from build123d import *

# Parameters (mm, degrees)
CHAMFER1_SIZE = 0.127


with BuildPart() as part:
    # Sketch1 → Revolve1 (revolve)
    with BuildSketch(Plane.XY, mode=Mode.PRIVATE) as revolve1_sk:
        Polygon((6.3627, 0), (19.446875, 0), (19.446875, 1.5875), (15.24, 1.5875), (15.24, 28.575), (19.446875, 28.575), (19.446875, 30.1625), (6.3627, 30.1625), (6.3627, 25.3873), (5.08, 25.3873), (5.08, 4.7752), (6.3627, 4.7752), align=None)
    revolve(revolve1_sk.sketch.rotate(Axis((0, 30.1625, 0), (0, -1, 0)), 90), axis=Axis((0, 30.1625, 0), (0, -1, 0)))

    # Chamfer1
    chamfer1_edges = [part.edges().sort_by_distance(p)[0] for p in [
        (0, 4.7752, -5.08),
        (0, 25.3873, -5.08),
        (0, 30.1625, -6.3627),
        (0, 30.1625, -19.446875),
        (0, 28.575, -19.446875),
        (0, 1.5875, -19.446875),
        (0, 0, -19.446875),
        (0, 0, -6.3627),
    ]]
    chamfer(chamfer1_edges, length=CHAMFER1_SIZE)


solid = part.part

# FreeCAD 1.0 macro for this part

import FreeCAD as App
import Part
import Sketcher
from FreeCAD import Vector
Q = App.Units.Quantity


def edges_at(feature, points):
    """Names of the edges that pass closest to the given points."""
    edges = feature.Shape.Edges
    near = lambda p: min(range(len(edges)), key=lambda i: edges[i].distToShape(Part.Vertex(*p))[0])
    return sorted({f"Edge{near(p) + 1}" for p in points})


def add_polygon(sketch, points):
    """Adds a closed chain of lines whose ends are joined by coincident constraints."""
    first, n = sketch.GeometryCount, len(points)
    for a, b in zip(points, points[1:] + points[:1]):
        sketch.addGeometry(Part.LineSegment(App.Vector(*a, 0), App.Vector(*b, 0)), False)
    for i in range(n):
        sketch.addConstraint(Sketcher.Constraint("Coincident", first + i, 2, first + (i + 1) % n, 1))

doc = App.newDocument("Part")
body = doc.addObject("PartDesign::Body", "Body")

# Sketch on XY plane
sketch1 = body.newObject("Sketcher::SketchObject", "Sketch")
sketch1.AttachmentSupport = (doc.getObject("XY_Plane"), [""])
sketch1.MapMode = "FlatFace"
add_polygon(sketch1, [(6.4, 0), (19.4, 0), (19.4, 1.6), (15.2, 1.6), (15.2, 28.6), (19.4, 28.6), (19.4, 30.2), (6.4, 30.2), (6.4, 25.4), (5.1, 25.4), (5.1, 4.8), (6.4, 4.8)])  # lines 0-11
sketch1.addConstraint([
    Sketcher.Constraint("Horizontal", 0),
    Sketcher.Constraint("Vertical", 1),
    Sketcher.Constraint("Horizontal", 2),
    Sketcher.Constraint("Vertical", 3),
    Sketcher.Constraint("Horizontal", 4),
    Sketcher.Constraint("Vertical", 5),
    Sketcher.Constraint("Horizontal", 6),
    Sketcher.Constraint("Vertical", 7),
    Sketcher.Constraint("Horizontal", 8),
    Sketcher.Constraint("Vertical", 9),
    Sketcher.Constraint("Horizontal", 10),
    Sketcher.Constraint("Vertical", 11),
    Sketcher.Constraint("PointOnObject", 0, 2, -1),
    Sketcher.Constraint("Vertical", 1, 2, 4, 2),
    Sketcher.Constraint("Vertical", 7, 2, 10, 2),
    Sketcher.Constraint("Equal", 1, 5),
    Sketcher.Constraint("Equal", 7, 11),
    Sketcher.Constraint("DistanceX", -1, 1, 2, 2, Q("0.6 in")),
    Sketcher.Constraint("DistanceX", -1, 1, 8, 2, Q("0.2 in")),
    Sketcher.Constraint("DistanceY", 1, 1, 1, 2, Q("0.0625 in")),
    Sketcher.Constraint("DistanceY", 3, 1, 3, 2, Q("1.0625 in")),
    Sketcher.Constraint("DistanceY", 7, 2, 7, 1, Q("0.188 in")),
    Sketcher.Constraint("DistanceX", 8, 2, 8, 1, Q("0.0505 in")),
    Sketcher.Constraint("DistanceX", -1, 1, 0, 2, Q("0.765625 in")),
])
revolution = body.newObject("PartDesign::Revolution", "Revolution")
revolution.Profile = sketch1
revolution.ReferenceAxis = (sketch1, ["V_Axis"])
revolution.Angle = 360
doc.recompute()

chamfer = body.newObject("PartDesign::Chamfer", "Chamfer")
chamfer.Base = (revolution, edges_at(revolution, [
    (0, 4.775, -5.08),
    (0, 25.387, -5.08),
    (0, 30.163, -6.363),
    (0, 30.163, -19.447),
    (0, 28.575, -19.447),
    (0, 1.587, -19.447),
    (0, 0, -19.447),
    (0, 0, -6.363),
]))
chamfer.Size = Q("0.005 in")

doc.recompute()
